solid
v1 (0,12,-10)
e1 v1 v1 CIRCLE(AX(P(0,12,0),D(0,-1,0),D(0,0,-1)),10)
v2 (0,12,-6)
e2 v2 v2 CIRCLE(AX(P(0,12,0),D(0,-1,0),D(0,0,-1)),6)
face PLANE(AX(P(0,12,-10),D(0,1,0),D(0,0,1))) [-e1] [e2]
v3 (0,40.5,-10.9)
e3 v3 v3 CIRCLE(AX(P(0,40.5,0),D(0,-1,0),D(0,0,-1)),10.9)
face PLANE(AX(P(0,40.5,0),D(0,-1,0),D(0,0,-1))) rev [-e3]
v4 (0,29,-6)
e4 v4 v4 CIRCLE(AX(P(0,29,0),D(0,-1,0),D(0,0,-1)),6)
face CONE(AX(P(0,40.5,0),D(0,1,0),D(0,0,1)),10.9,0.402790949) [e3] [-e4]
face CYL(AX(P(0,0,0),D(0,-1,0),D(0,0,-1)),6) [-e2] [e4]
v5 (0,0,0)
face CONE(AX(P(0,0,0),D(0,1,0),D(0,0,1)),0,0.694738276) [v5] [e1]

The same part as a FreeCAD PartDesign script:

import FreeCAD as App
import Part
import Sketcher
from FreeCAD import Vector
Q = App.Units.Quantity


def add_polygon(sketch, points):
    """Adds a closed chain of lines whose ends are joined by coincident constraints."""
    first, n = sketch.GeometryCount, len(points)
    for a, b in zip(points, points[1:] + points[:1]):
        sketch.addGeometry(Part.LineSegment(App.Vector(*a, 0), App.Vector(*b, 0)), False)
    for i in range(n):
        sketch.addConstraint(Sketcher.Constraint("Coincident", first + i, 2, first + (i + 1) % n, 1))

doc = App.newDocument("Part")
params = doc.addObject("Spreadsheet::Sheet", "Params")
for row, (alias, value) in enumerate([
    ("sketch1_width", "17 mm"),
    ("sketch1_height", "4 mm"),
    ("sketch1_width2", "40.5 mm"),
    ("sketch1_height2", "10.9 mm"),
    ("revolution_angle", "360 deg"),
], start=1):
    params.set(f"A{row}", alias)
    params.set(f"B{row}", "=" + value)
    params.setAlias(f"B{row}", alias)

body = doc.addObject("PartDesign::Body", "Body")

# Sketch on YZ plane
sketch1 = body.newObject("Sketcher::SketchObject", "Sketch")
sketch1.AttachmentSupport = (doc.getObject("YZ_Plane"), [""])
sketch1.MapMode = "FlatFace"
add_polygon(sketch1, [(0, 0), (12, -10), (12, -6), (29, -6), (40.5, -10.9), (40.5, 0)])  # lines 0-5
sketch1.addConstraint([
    Sketcher.Constraint("Vertical", 1),
    Sketcher.Constraint("Horizontal", 2),
    Sketcher.Constraint("Vertical", 4),
    Sketcher.Constraint("Horizontal", 5),
    Sketcher.Constraint("Coincident", 5, 2, -1, 1),
    Sketcher.Constraint("DistanceX", 2, 1, 2, 2, Q("17 mm")),
    Sketcher.Constraint("DistanceY", 1, 1, 1, 2, Q("4 mm")),
    Sketcher.Constraint("DistanceX", 5, 2, 5, 1, Q("40.5 mm")),
    Sketcher.Constraint("DistanceY", 4, 1, 4, 2, Q("10.9 mm")),
    Sketcher.Constraint("DistanceX", -1, 1, 0, 2, Q("12 mm")),
    Sketcher.Constraint("DistanceY", 0, 2, -1, 1, Q("10 mm")),
])
sketch1.setExpression("Constraints[11]", "Params.sketch1_width")
sketch1.setExpression("Constraints[12]", "Params.sketch1_height")
sketch1.setExpression("Constraints[13]", "Params.sketch1_width2")
sketch1.setExpression("Constraints[14]", "Params.sketch1_height2")
revolution = body.newObject("PartDesign::Revolution", "Revolution")
revolution.Profile = sketch1
revolution.ReferenceAxis = (sketch1, ["H_Axis"])
revolution.setExpression("Angle", "Params.revolution_angle")

doc.recompute()
